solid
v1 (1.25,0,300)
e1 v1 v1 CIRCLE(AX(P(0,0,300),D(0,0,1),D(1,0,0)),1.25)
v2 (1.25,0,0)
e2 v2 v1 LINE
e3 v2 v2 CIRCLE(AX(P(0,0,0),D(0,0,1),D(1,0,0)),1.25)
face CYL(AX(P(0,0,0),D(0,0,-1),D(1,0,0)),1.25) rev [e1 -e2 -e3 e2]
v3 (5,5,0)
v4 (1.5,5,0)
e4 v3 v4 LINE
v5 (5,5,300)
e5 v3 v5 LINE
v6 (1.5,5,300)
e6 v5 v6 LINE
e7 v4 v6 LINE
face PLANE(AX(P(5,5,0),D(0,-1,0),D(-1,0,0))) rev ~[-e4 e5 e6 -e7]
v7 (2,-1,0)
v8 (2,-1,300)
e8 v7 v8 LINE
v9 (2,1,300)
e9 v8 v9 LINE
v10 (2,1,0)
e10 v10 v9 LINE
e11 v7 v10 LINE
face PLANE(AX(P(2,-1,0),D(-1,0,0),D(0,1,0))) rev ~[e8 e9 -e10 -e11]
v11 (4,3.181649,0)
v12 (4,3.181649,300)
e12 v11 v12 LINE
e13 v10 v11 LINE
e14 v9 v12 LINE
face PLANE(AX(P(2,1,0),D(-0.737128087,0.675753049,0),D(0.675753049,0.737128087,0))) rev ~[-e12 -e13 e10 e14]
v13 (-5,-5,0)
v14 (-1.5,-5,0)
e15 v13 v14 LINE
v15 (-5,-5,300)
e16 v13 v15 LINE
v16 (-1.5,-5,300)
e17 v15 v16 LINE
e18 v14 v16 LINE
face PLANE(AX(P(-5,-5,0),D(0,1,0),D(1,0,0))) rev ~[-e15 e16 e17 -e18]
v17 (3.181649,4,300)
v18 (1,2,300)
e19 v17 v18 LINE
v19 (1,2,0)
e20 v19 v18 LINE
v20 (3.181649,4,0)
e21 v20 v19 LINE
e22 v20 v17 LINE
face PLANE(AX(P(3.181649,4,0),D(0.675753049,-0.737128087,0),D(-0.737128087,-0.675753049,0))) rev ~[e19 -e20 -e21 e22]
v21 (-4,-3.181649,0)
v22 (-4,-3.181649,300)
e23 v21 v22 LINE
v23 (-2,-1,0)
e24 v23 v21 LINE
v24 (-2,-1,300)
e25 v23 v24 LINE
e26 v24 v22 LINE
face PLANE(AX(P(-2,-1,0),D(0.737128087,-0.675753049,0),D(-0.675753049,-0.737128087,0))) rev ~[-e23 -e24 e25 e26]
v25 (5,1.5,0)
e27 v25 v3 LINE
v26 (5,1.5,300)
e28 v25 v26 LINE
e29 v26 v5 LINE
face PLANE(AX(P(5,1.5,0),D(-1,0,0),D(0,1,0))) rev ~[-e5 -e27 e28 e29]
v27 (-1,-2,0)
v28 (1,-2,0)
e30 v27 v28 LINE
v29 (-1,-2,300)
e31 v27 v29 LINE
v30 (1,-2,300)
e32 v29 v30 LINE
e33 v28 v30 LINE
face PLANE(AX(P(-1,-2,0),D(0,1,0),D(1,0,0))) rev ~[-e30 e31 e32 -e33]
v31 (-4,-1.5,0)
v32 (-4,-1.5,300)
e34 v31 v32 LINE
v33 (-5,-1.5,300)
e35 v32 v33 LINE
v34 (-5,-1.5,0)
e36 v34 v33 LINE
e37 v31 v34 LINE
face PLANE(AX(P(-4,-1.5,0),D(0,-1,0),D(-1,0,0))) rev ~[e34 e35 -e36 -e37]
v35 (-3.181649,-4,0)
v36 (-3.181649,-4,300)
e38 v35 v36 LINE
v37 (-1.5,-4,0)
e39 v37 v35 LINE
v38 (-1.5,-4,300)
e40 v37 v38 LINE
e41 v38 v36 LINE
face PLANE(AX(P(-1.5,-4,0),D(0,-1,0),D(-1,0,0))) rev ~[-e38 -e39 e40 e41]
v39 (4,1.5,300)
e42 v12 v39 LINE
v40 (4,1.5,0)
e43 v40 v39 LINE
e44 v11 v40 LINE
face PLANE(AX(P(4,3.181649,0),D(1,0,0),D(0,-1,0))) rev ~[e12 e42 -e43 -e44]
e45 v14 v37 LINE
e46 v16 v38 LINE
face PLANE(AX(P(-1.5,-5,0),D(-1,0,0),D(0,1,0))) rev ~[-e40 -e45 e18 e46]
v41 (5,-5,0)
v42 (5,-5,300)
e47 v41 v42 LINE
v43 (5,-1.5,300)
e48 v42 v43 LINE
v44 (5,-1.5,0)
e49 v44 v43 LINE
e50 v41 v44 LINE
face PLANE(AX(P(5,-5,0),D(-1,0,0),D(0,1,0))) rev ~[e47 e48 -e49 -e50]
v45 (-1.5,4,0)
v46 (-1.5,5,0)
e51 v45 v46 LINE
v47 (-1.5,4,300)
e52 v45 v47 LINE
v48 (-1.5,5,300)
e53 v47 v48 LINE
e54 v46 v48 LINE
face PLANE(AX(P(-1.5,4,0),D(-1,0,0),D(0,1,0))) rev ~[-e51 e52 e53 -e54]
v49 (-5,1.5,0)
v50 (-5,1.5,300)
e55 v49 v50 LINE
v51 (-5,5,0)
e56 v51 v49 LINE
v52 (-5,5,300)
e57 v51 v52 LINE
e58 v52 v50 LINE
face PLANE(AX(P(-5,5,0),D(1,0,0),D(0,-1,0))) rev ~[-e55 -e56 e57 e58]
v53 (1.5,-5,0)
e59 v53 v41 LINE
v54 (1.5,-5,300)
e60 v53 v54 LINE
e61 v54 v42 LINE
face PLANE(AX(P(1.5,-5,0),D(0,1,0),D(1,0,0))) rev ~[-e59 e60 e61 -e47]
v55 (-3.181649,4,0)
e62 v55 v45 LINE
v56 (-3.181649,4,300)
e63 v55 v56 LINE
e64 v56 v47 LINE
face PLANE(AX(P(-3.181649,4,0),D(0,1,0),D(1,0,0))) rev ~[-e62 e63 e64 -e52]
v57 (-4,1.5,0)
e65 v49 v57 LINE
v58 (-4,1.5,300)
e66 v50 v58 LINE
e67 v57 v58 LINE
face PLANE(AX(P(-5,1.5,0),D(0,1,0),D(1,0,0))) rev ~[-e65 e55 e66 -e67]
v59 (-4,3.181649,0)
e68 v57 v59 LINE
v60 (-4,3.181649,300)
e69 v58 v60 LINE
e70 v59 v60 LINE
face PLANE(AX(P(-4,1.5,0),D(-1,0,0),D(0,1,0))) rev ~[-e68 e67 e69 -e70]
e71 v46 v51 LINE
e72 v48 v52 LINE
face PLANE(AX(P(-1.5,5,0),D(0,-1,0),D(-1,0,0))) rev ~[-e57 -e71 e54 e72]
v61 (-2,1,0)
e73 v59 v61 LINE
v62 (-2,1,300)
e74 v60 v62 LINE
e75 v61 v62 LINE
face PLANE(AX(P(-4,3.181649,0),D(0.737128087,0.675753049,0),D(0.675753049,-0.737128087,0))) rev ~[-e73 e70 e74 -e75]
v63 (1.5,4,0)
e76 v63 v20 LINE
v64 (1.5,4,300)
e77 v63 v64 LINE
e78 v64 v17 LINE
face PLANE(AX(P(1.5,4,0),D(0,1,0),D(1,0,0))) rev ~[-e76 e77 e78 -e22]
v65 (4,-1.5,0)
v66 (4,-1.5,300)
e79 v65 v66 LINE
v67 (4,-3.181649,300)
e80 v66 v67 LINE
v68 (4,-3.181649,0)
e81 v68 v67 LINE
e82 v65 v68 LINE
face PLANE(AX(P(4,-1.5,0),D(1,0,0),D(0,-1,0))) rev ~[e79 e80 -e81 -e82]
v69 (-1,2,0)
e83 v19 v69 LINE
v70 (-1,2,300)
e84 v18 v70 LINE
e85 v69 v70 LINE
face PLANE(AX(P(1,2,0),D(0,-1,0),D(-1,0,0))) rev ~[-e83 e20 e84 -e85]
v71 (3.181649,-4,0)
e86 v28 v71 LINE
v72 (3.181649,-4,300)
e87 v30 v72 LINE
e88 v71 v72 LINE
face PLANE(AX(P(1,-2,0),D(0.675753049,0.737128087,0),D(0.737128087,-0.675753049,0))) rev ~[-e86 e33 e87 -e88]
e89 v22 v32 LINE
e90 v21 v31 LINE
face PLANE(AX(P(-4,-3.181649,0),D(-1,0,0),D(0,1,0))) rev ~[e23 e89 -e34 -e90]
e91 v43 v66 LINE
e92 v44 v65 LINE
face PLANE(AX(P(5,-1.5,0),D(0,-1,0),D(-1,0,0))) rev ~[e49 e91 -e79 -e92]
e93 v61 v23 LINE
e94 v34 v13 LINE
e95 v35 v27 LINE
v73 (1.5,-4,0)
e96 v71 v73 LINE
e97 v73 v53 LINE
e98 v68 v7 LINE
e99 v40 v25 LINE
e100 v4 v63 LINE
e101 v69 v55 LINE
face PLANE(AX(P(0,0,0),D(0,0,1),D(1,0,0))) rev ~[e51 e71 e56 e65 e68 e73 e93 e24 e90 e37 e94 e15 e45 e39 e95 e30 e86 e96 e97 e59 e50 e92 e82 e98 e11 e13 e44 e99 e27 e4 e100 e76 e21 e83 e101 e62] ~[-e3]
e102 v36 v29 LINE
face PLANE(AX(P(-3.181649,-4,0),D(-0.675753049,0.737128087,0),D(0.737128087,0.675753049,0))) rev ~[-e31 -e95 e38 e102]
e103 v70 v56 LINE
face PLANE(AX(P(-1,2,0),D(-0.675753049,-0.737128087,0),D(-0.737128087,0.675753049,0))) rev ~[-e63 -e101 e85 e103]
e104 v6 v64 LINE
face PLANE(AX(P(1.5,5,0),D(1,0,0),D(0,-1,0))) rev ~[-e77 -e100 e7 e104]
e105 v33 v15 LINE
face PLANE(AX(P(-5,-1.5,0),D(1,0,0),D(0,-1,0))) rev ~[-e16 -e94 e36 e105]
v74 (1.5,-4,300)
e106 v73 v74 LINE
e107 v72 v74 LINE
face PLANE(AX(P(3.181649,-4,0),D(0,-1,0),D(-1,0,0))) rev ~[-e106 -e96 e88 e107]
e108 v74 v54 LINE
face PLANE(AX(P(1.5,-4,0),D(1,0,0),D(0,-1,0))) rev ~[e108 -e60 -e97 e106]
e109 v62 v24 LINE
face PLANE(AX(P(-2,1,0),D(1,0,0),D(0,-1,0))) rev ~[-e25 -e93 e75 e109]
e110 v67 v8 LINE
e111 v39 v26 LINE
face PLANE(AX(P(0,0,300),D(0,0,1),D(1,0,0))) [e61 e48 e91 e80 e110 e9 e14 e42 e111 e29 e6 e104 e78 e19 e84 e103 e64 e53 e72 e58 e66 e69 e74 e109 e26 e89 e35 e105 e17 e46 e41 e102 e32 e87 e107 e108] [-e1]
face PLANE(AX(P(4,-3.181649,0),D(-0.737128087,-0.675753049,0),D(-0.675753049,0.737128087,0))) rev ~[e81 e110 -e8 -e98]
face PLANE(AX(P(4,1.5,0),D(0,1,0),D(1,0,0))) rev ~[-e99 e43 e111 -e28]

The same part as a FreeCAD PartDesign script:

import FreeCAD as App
import Part
import Sketcher

V = App.Vector


def add_polygon(sketch, points):
    """Adds a closed chain of lines whose ends are joined by coincident constraints."""
    first, n = sketch.GeometryCount, len(points)
    for a, b in zip(points, points[1:] + points[:1]):
        sketch.addGeometry(Part.LineSegment(App.Vector(*a, 0), App.Vector(*b, 0)), False)
    for i in range(n):
        sketch.addConstraint(Sketcher.Constraint("Coincident", first + i, 2, first + (i + 1) % n, 1))

doc = App.newDocument("Part")
body = doc.addObject("PartDesign::Body", "Body")

# Sketch on XY plane
sketch1 = body.newObject("Sketcher::SketchObject", "Sketch")
sketch1.AttachmentSupport = (doc.getObject("XY_Plane"), [""])
sketch1.MapMode = "FlatFace"
add_polygon(sketch1, [(-4, 3.2), (-2, 1), (-2, -1), (-4, -3.2), (-4, -1.5), (-5, -1.5), (-5, -5), (-1.5, -5), (-1.5, -4), (-3.2, -4), (-1, -2), (1, -2), (3.2, -4), (1.5, -4), (1.5, -5), (5, -5), (5, -1.5), (4, -1.5), (4, -3.2), (2, -1), (2, 1), (4, 3.2), (4, 1.5), (5, 1.5), (5, 5), (1.5, 5), (1.5, 4), (3.2, 4), (1, 2), (-1, 2), (-3.2, 4), (-1.5, 4), (-1.5, 5), (-5, 5), (-5, 1.5), (-4, 1.5)])  # lines 0-35
sketch1.addGeometry(Part.Circle(V(0, 0, 0), V(0, 0, 1), 1.2), False)  # 36
sketch1.addConstraint([
    Sketcher.Constraint("Vertical", 1),
    Sketcher.Constraint("Vertical", 3),
    Sketcher.Constraint("Horizontal", 4),
    Sketcher.Constraint("Vertical", 5),
    Sketcher.Constraint("Horizontal", 6),
    Sketcher.Constraint("Vertical", 7),
    Sketcher.Constraint("Horizontal", 8),
    Sketcher.Constraint("Horizontal", 10),
    Sketcher.Constraint("Horizontal", 12),
    Sketcher.Constraint("Vertical", 13),
    Sketcher.Constraint("Horizontal", 14),
    Sketcher.Constraint("Vertical", 15),
    Sketcher.Constraint("Horizontal", 16),
    Sketcher.Constraint("Vertical", 17),
    Sketcher.Constraint("Vertical", 19),
    Sketcher.Constraint("Vertical", 21),
    Sketcher.Constraint("Horizontal", 22),
    Sketcher.Constraint("Vertical", 23),
    Sketcher.Constraint("Horizontal", 24),
    Sketcher.Constraint("Vertical", 25),
    Sketcher.Constraint("Horizontal", 26),
    Sketcher.Constraint("Horizontal", 28),
    Sketcher.Constraint("Horizontal", 30),
    Sketcher.Constraint("Vertical", 31),
    Sketcher.Constraint("Horizontal", 32),
    Sketcher.Constraint("Vertical", 33),
    Sketcher.Constraint("Horizontal", 34),
    Sketcher.Constraint("Vertical", 35),
    Sketcher.Constraint("Coincident", 36, 3, -1, 1),
    Sketcher.Constraint("Symmetric", 0, 2, 18, 2, -1, 1),
    Sketcher.Constraint("Symmetric", 2, 2, 20, 2, -1, 1),
    Sketcher.Constraint("Symmetric", 4, 2, 22, 2, -1, 1),
    Sketcher.Constraint("Symmetric", 6, 2, 24, 2, -1, 1),
    Sketcher.Constraint("Symmetric", 8, 2, 26, 2, -1, 1),
    Sketcher.Constraint("Symmetric", 9, 2, 27, 2, -1, 1),
    Sketcher.Constraint("Symmetric", 11, 2, 29, 2, -1, 1),
    Sketcher.Constraint("Symmetric", 13, 2, 31, 2, -1, 1),
    Sketcher.Constraint("Symmetric", 15, 2, 33, 2, -1, 1),
    Sketcher.Constraint("Symmetric", 17, 2, 35, 2, -1, 1),
    Sketcher.Constraint("Symmetric", 8, 2, 11, 2, -2),
    Sketcher.Constraint("Symmetric", 6, 2, 13, 2, -2),
    Sketcher.Constraint("Symmetric", 4, 2, 15, 2, -2),
    Sketcher.Constraint("Symmetric", 2, 2, 17, 2, -2),
    Sketcher.Constraint("Perpendicular", 0, 9),
    Sketcher.Constraint("Perpendicular", 2, 11),
    Sketcher.Constraint("Perpendicular", 11, 20),
    Sketcher.Constraint("Perpendicular", 20, 29),
    Sketcher.Constraint("Horizontal", 1, 2, 18, 2),
    Sketcher.Constraint("Equal", 28, 1),
    Sketcher.Constraint("Equal", 30, 3),
    Sketcher.Constraint("Equal", 32, 5),
    Sketcher.Constraint("Equal", 34, 7),
    Sketcher.Constraint("Equal", 2, 9),
    Sketcher.Constraint("Diameter", 36, 2.5),
    Sketcher.Constraint("DistanceX", 4, 2, 4, 1, 1.0),
    Sketcher.Constraint("DistanceX", 10, 1, 10, 2, 2.0),
    Sketcher.Constraint("DistanceX", 6, 1, 6, 2, 3.5),
    Sketcher.Constraint("DistanceX", 0, 2, -1, 1, 2.0),
    Sketcher.Constraint("DistanceX", 2, 2, -1, 1, 4.0),
    Sketcher.Constraint("DistanceX", 8, 2, 8, 1, 1.681649),
])
pad1 = body.newObject("PartDesign::Pad", "Pad")
pad1.Profile = sketch1
pad1.Length = 300

doc.recompute()
